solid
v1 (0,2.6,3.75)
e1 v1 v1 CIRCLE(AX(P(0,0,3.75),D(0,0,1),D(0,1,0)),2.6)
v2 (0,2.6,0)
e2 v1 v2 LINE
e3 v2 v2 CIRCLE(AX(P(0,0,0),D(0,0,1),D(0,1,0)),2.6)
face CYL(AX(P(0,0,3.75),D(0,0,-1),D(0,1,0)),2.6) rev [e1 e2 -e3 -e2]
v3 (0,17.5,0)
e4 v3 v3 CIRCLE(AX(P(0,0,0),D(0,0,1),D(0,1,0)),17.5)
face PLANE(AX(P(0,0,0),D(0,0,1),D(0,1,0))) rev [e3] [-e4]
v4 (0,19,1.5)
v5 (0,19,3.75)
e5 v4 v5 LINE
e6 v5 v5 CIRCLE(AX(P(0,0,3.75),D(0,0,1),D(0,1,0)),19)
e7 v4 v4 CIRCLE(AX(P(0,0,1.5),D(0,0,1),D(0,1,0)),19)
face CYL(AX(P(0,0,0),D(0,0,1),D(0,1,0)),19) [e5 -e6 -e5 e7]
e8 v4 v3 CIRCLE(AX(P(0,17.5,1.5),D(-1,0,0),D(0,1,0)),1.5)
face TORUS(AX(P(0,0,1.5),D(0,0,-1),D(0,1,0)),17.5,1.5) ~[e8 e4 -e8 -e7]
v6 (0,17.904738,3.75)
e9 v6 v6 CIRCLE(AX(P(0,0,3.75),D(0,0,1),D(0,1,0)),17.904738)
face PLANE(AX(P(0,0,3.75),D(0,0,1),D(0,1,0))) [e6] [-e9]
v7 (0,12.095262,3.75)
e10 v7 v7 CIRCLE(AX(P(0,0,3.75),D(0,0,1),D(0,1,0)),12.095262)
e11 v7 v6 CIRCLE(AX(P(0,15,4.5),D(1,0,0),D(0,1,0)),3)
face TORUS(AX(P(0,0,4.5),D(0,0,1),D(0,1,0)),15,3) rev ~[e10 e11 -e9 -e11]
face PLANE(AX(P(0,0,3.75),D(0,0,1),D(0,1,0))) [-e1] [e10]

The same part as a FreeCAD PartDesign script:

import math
import FreeCAD as App
import Part
import Sketcher


def edges_at(feature, points):
    """Names of the edges that pass closest to the given points."""
    edges = feature.Shape.Edges
    near = lambda p: min(range(len(edges)), key=lambda i: edges[i].distToShape(Part.Vertex(*p))[0])
    return sorted({f"Edge{near(p) + 1}" for p in points})

doc = App.newDocument("Part")
body = doc.addObject("PartDesign::Body", "Body")

# Sketch on YZ plane
sketch1 = body.newObject("Sketcher::SketchObject", "Sketch")
sketch1.AttachmentSupport = (doc.getObject("YZ_Plane"), [""])
sketch1.MapMode = "FlatFace"
sketch1.addGeometry(Part.ArcOfCircle(Part.Circle(App.Vector(15, 4.5, 0), App.Vector(0, 0, 1), 3), math.radians(-166), math.radians(-14)), False)
sketch1.addGeometry(Part.LineSegment(App.Vector(12.1, 3.8, 0), App.Vector(2.6, 3.8, 0)), False)
sketch1.addGeometry(Part.LineSegment(App.Vector(2.6, 3.8, 0), App.Vector(2.6, 0, 0)), False)
sketch1.addGeometry(Part.LineSegment(App.Vector(2.6, 0, 0), App.Vector(19, 0, 0)), False)
sketch1.addGeometry(Part.LineSegment(App.Vector(19, 0, 0), App.Vector(19, 3.8, 0)), False)
sketch1.addGeometry(Part.LineSegment(App.Vector(19, 3.8, 0), App.Vector(17.9, 3.8, 0)), False)
sketch1.addConstraint(Sketcher.Constraint("Coincident", 0, 1, 1, 1))
sketch1.addConstraint(Sketcher.Constraint("Coincident", 1, 2, 2, 1))
sketch1.addConstraint(Sketcher.Constraint("Coincident", 2, 2, 3, 1))
sketch1.addConstraint(Sketcher.Constraint("Coincident", 3, 2, 4, 1))
sketch1.addConstraint(Sketcher.Constraint("Coincident", 4, 2, 5, 1))
sketch1.addConstraint(Sketcher.Constraint("Coincident", 5, 2, 0, 2))
sketch1.addConstraint(Sketcher.Constraint("Horizontal", 1))
sketch1.addConstraint(Sketcher.Constraint("Vertical", 2))
sketch1.addConstraint(Sketcher.Constraint("Horizontal", 3))
sketch1.addConstraint(Sketcher.Constraint("Vertical", 4))
sketch1.addConstraint(Sketcher.Constraint("Horizontal", 5))
sketch1.addConstraint(Sketcher.Constraint("PointOnObject", 2, 2, -1))
sketch1.addConstraint(Sketcher.Constraint("Horizontal", 1, 2, 4, 2))
sketch1.addConstraint(Sketcher.Constraint("Radius", 0, 3.0))
sketch1.addConstraint(Sketcher.Constraint("DistanceX", -1, 1, 0, 3, 15.0))
sketch1.addConstraint(Sketcher.Constraint("DistanceX", 0, 3, 3, 2, 4.0))
sketch1.addConstraint(Sketcher.Constraint("DistanceY", 2, 2, 2, 1, 3.75))
sketch1.addConstraint(Sketcher.Constraint("DistanceY", -1, 1, 0, 3, 4.5))
sketch1.addConstraint(Sketcher.Constraint("DistanceX", -1, 1, 1, 2, 2.6))
revolution = body.newObject("PartDesign::Revolution", "Revolution")
revolution.Profile = sketch1
revolution.ReferenceAxis = (sketch1, ["V_Axis"])
revolution.Angle = 360
doc.recompute()

fillet = body.newObject("PartDesign::Fillet", "Fillet")
fillet.Base = (revolution, edges_at(revolution, [(-17.714, 6.871, 0)]))
fillet.Radius = 1.5

doc.recompute()
